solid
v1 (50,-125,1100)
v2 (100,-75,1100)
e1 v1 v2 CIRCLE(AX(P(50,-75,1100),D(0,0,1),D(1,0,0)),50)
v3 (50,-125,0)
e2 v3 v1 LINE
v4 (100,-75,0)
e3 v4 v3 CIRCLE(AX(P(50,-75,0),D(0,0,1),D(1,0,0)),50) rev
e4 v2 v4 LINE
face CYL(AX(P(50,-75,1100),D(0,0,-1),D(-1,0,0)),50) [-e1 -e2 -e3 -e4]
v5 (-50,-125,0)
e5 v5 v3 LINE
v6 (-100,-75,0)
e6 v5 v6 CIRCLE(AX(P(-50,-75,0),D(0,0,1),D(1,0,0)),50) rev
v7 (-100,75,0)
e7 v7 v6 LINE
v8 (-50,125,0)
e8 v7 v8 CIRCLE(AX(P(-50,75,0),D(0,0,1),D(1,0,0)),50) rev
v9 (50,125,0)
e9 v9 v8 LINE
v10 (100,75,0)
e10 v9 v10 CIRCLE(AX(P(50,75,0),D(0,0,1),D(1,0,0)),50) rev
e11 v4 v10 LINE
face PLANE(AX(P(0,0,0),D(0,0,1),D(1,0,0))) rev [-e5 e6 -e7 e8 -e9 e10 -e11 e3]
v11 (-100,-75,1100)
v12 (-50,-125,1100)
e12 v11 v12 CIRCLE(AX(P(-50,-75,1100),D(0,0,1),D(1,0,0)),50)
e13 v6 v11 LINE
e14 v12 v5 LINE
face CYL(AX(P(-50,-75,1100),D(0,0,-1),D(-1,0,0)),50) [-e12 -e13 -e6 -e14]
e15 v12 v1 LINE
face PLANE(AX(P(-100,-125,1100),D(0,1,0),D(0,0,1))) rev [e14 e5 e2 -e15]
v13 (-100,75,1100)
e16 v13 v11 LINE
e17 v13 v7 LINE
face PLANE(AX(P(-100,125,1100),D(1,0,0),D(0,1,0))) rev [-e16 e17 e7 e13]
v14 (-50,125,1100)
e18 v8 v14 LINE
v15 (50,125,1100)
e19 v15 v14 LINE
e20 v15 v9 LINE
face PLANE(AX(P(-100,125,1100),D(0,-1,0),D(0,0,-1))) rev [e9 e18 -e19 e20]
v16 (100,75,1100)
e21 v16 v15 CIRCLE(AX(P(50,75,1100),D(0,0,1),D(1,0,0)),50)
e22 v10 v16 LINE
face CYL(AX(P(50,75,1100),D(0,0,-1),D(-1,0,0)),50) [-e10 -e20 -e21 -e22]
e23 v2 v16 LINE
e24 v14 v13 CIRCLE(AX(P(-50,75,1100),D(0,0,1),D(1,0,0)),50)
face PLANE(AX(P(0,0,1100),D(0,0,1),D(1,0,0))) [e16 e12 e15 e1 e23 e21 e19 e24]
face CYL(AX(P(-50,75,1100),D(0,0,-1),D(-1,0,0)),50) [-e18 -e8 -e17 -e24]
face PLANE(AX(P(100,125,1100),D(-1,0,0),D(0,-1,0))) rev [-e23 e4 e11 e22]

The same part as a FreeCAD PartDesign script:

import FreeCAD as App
import Part
import Sketcher
Q = App.Units.Quantity


def edges_at(feature, points):
    """Names of the edges that pass closest to the given points."""
    edges = feature.Shape.Edges
    near = lambda p: min(range(len(edges)), key=lambda i: edges[i].distToShape(Part.Vertex(*p))[0])
    return sorted({f"Edge{near(p) + 1}" for p in points})


def add_polygon(sketch, points):
    """Adds a closed chain of lines whose ends are joined by coincident constraints."""
    first, n = sketch.GeometryCount, len(points)
    for a, b in zip(points, points[1:] + points[:1]):
        sketch.addGeometry(Part.LineSegment(App.Vector(*a, 0), App.Vector(*b, 0)), False)
    for i in range(n):
        sketch.addConstraint(Sketcher.Constraint("Coincident", first + i, 2, first + (i + 1) % n, 1))

doc = App.newDocument("Part")
body = doc.addObject("PartDesign::Body", "Body")

# Sketch on XY plane
sketch1 = body.newObject("Sketcher::SketchObject", "Sketch")
sketch1.AttachmentSupport = (doc.getObject("XY_Plane"), [""])
sketch1.MapMode = "FlatFace"
add_polygon(sketch1, [(-100, 125), (-100, -125), (100, -125), (100, 125)])  # lines 0-3
sketch1.addConstraint([
    Sketcher.Constraint("Vertical", 0),
    Sketcher.Constraint("Horizontal", 1),
    Sketcher.Constraint("Vertical", 2),
    Sketcher.Constraint("Horizontal", 3),
    Sketcher.Constraint("Symmetric", 0, 2, 2, 2, -1, 1),
    Sketcher.Constraint("DistanceX", 1, 1, 1, 2, Q("200 mm")),
    Sketcher.Constraint("DistanceY", 0, 2, 0, 1, Q("250 mm")),
])
pad1 = body.newObject("PartDesign::Pad", "Pad")
pad1.Profile = sketch1
pad1.Length = 1100
doc.recompute()

fillet = body.newObject("PartDesign::Fillet", "Fillet")
fillet.Base = (pad1, edges_at(pad1, [(-100, 125, 550)]))
fillet.Radius = 50
doc.recompute()

fillet2 = body.newObject("PartDesign::Fillet", "Fillet001")
fillet2.Base = (fillet, edges_at(fillet, [(-100, -125, 550)]))
fillet2.Radius = 50
doc.recompute()

fillet3 = body.newObject("PartDesign::Fillet", "Fillet002")
fillet3.Base = (fillet2, edges_at(fillet2, [(100, 125, 550)]))
fillet3.Radius = 50
doc.recompute()

fillet4 = body.newObject("PartDesign::Fillet", "Fillet003")
fillet4.Base = (fillet3, edges_at(fillet3, [(100, -125, 550)]))
fillet4.Radius = 50

doc.recompute()
